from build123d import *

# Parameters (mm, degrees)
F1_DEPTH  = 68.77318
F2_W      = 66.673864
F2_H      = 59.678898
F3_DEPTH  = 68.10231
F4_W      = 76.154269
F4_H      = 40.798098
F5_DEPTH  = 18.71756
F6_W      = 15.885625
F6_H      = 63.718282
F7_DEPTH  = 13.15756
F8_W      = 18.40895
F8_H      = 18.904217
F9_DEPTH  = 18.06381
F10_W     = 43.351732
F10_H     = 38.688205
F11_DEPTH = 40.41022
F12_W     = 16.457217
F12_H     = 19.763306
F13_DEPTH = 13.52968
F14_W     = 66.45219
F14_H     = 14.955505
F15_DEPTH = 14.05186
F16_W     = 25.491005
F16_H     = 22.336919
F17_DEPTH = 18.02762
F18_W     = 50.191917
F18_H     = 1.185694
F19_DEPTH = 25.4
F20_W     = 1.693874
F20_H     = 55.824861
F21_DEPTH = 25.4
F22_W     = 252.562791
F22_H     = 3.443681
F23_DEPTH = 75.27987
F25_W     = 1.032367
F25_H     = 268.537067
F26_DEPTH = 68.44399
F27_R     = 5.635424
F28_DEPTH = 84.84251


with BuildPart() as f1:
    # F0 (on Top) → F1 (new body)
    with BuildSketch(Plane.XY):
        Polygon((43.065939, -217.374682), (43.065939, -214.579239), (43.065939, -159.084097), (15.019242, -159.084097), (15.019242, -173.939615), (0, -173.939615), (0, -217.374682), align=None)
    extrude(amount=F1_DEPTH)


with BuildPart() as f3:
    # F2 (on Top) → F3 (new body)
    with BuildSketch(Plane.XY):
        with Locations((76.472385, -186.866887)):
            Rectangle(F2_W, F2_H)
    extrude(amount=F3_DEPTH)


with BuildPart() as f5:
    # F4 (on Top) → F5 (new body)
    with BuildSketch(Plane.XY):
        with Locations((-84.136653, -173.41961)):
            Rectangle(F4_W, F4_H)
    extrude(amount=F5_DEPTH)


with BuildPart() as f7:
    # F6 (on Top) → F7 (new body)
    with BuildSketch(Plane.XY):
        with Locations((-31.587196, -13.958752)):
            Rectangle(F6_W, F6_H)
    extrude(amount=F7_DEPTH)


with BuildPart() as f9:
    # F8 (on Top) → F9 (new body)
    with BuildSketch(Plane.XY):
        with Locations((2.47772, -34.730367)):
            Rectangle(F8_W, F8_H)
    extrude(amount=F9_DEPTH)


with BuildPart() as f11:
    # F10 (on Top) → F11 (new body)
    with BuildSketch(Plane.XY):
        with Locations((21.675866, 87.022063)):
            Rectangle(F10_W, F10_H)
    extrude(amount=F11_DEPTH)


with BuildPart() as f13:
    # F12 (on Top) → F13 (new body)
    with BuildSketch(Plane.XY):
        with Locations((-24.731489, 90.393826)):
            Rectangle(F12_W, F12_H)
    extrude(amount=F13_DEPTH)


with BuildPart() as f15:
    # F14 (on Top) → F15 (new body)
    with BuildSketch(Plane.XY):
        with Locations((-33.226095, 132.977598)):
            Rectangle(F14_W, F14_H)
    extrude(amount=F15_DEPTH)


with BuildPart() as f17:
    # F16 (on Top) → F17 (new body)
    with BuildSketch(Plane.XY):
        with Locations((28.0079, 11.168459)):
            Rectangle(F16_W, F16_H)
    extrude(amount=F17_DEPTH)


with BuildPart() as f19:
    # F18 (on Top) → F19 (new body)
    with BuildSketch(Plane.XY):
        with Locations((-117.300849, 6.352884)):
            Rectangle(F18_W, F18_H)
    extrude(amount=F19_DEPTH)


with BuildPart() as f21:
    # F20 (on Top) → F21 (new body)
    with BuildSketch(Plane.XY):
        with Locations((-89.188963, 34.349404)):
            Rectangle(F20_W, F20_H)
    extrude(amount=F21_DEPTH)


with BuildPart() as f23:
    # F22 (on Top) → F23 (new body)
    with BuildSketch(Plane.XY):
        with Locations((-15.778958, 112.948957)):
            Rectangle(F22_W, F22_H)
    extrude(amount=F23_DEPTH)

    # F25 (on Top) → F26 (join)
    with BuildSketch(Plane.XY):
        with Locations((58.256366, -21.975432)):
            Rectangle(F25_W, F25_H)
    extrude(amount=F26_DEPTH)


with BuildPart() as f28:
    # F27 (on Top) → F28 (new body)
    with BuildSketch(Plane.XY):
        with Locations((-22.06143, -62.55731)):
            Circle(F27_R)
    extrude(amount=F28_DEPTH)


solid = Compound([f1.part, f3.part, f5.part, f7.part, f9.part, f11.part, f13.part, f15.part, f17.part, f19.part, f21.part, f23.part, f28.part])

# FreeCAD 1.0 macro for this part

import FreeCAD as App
import Part
import Sketcher

V = App.Vector


def add_polygon(sketch, points):
    """Adds a closed chain of lines whose ends are joined by coincident constraints."""
    first, n = sketch.GeometryCount, len(points)
    for a, b in zip(points, points[1:] + points[:1]):
        sketch.addGeometry(Part.LineSegment(App.Vector(*a, 0), App.Vector(*b, 0)), False)
    for i in range(n):
        sketch.addConstraint(Sketcher.Constraint("Coincident", first + i, 2, first + (i + 1) % n, 1))

doc = App.newDocument("Part")
params = doc.addObject("Spreadsheet::Sheet", "Params")
for row, (alias, value) in enumerate([
    ("pad1_length", "68.77318 mm"),
    ("pad2_length", "68.10231 mm"),
    ("pad3_length", "18.71756 mm"),
    ("pad4_length", "13.15756 mm"),
    ("pad5_length", "18.06381 mm"),
    ("pad6_length", "40.41022 mm"),
    ("pad7_length", "13.52968 mm"),
    ("pad8_length", "14.05186 mm"),
    ("pad9_length", "18.02762 mm"),
    ("pad10_length", "1 in"),
    ("pad11_length", "1 in"),
    ("pad12_length", "75.27987 mm"),
    ("pad13_length", "68.44399 mm"),
    ("pad14_length", "84.84251 mm"),
], start=1):
    params.set(f"A{row}", alias)
    params.set(f"B{row}", "=" + value)
    params.setAlias(f"B{row}", alias)

body = doc.addObject("PartDesign::Body", "Body")

# Sketch on XY plane
sketch1 = body.newObject("Sketcher::SketchObject", "Sketch")
sketch1.AttachmentSupport = (doc.getObject("XY_Plane"), [""])
sketch1.MapMode = "FlatFace"
add_polygon(sketch1, [(43, -217), (43, -159), (15, -159), (15, -174), (0, -174), (0, -217)])  # lines 0-5
sketch1.addConstraint([
    Sketcher.Constraint("Vertical", 0),
    Sketcher.Constraint("Horizontal", 1),
    Sketcher.Constraint("Vertical", 2),
    Sketcher.Constraint("Horizontal", 3),
    Sketcher.Constraint("Vertical", 4),
    Sketcher.Constraint("Horizontal", 5),
    Sketcher.Constraint("PointOnObject", 3, 2, -2),
    Sketcher.Constraint("DistanceX", 5, 1, 5, 2, 43.065939),
    Sketcher.Constraint("DistanceX", 1, 2, 1, 1, 28.046697),
    Sketcher.Constraint("DistanceY", 0, 1, 0, 2, 58.290585),
    Sketcher.Constraint("DistanceY", 2, 2, 2, 1, 14.855518),
    Sketcher.Constraint("DistanceY", 4, 2, -1, 1, 217.374682),
])
pad1 = body.newObject("PartDesign::Pad", "Pad")
pad1.Profile = sketch1
pad1.setExpression("Length", "Params.pad1_length")
body2 = doc.addObject("PartDesign::Body", "Body001")

# Sketch on XY plane
sketch2 = body2.newObject("Sketcher::SketchObject", "Sketch001")
sketch2.AttachmentSupport = (doc.getObject("XY_Plane001"), [""])
sketch2.MapMode = "FlatFace"
add_polygon(sketch2, [(43, -157), (43, -217), (110, -217), (110, -157)])  # lines 0-3
sketch2.addConstraint([
    Sketcher.Constraint("Vertical", 0),
    Sketcher.Constraint("Horizontal", 1),
    Sketcher.Constraint("Vertical", 2),
    Sketcher.Constraint("Horizontal", 3),
    Sketcher.Constraint("DistanceY", 0, 2, 0, 1, 59.678898),
    Sketcher.Constraint("DistanceX", 1, 1, 1, 2, 66.673864),
    Sketcher.Constraint("DistanceX", -1, 1, 0, 2, 43.135453),
    Sketcher.Constraint("DistanceY", 0, 2, -1, 1, 216.706336),
])
pad2 = body2.newObject("PartDesign::Pad", "Pad001")
pad2.Profile = sketch2
pad2.setExpression("Length", "Params.pad2_length")
body3 = doc.addObject("PartDesign::Body", "Body002")

# Sketch on XY plane
sketch3 = body3.newObject("Sketcher::SketchObject", "Sketch002")
sketch3.AttachmentSupport = (doc.getObject("XY_Plane002"), [""])
sketch3.MapMode = "FlatFace"
add_polygon(sketch3, [(-122, -153), (-122, -194), (-46, -194), (-46, -153)])  # lines 0-3
sketch3.addConstraint([
    Sketcher.Constraint("Vertical", 0),
    Sketcher.Constraint("Horizontal", 1),
    Sketcher.Constraint("Vertical", 2),
    Sketcher.Constraint("Horizontal", 3),
    Sketcher.Constraint("DistanceY", 0, 2, 0, 1, 40.798098),
    Sketcher.Constraint("DistanceX", 1, 1, 1, 2, 76.154269),
    Sketcher.Constraint("DistanceY", 0, 2, -1, 1, 193.818659),
    Sketcher.Constraint("DistanceX", 1, 2, -1, 1, 46.059519),
])
pad3 = body3.newObject("PartDesign::Pad", "Pad002")
pad3.Profile = sketch3
pad3.setExpression("Length", "Params.pad3_length")
body4 = doc.addObject("PartDesign::Body", "Body003")

# Sketch on XY plane
sketch4 = body4.newObject("Sketcher::SketchObject", "Sketch003")
sketch4.AttachmentSupport = (doc.getObject("XY_Plane003"), [""])
sketch4.MapMode = "FlatFace"
add_polygon(sketch4, [(-40, 18), (-40, -46), (-24, -46), (-24, 18)])  # lines 0-3
sketch4.addConstraint([
    Sketcher.Constraint("Vertical", 0),
    Sketcher.Constraint("Horizontal", 1),
    Sketcher.Constraint("Vertical", 2),
    Sketcher.Constraint("Horizontal", 3),
    Sketcher.Constraint("DistanceX", 1, 1, 1, 2, 15.885625),
    Sketcher.Constraint("DistanceY", 0, 2, 0, 1, 63.718282),
    Sketcher.Constraint("DistanceX", 0, 2, -1, 1, 39.530009),
    Sketcher.Constraint("DistanceY", -1, 1, 2, 2, 17.900389),
])
pad4 = body4.newObject("PartDesign::Pad", "Pad003")
pad4.Profile = sketch4
pad4.setExpression("Length", "Params.pad4_length")
body5 = doc.addObject("PartDesign::Body", "Body004")

# Sketch on XY plane
sketch5 = body5.newObject("Sketcher::SketchObject", "Sketch004")
sketch5.AttachmentSupport = (doc.getObject("XY_Plane004"), [""])
sketch5.MapMode = "FlatFace"
add_polygon(sketch5, [(-7, -25), (-7, -44), (12, -44), (12, -25)])  # lines 0-3
sketch5.addConstraint([
    Sketcher.Constraint("Vertical", 0),
    Sketcher.Constraint("Horizontal", 1),
    Sketcher.Constraint("Vertical", 2),
    Sketcher.Constraint("Horizontal", 3),
    Sketcher.Constraint("DistanceX", 1, 1, 1, 2, 18.40895),
    Sketcher.Constraint("DistanceY", 0, 2, 0, 1, 18.904217),
    Sketcher.Constraint("DistanceY", 2, 2, -1, 1, 25.278258),
    Sketcher.Constraint("DistanceX", 0, 2, -1, 1, 6.726755),
])
pad5 = body5.newObject("PartDesign::Pad", "Pad004")
pad5.Profile = sketch5
pad5.setExpression("Length", "Params.pad5_length")
body6 = doc.addObject("PartDesign::Body", "Body005")

# Sketch on XY plane
sketch6 = body6.newObject("Sketcher::SketchObject", "Sketch005")
sketch6.AttachmentSupport = (doc.getObject("XY_Plane005"), [""])
sketch6.MapMode = "FlatFace"
add_polygon(sketch6, [(0, 106), (0, 68), (43, 68), (43, 106)])  # lines 0-3
sketch6.addConstraint([
    Sketcher.Constraint("Vertical", 0),
    Sketcher.Constraint("Horizontal", 1),
    Sketcher.Constraint("Vertical", 2),
    Sketcher.Constraint("Horizontal", 3),
    Sketcher.Constraint("PointOnObject", 0, 2, -2),
    Sketcher.Constraint("DistanceX", 1, 1, 1, 2, 43.351732),
    Sketcher.Constraint("DistanceY", 0, 2, 0, 1, 38.688205),
    Sketcher.Constraint("DistanceY", -1, 1, 0, 2, 67.67796),
])
pad6 = body6.newObject("PartDesign::Pad", "Pad005")
pad6.Profile = sketch6
pad6.setExpression("Length", "Params.pad6_length")
body7 = doc.addObject("PartDesign::Body", "Body006")

# Sketch on XY plane
sketch7 = body7.newObject("Sketcher::SketchObject", "Sketch006")
sketch7.AttachmentSupport = (doc.getObject("XY_Plane006"), [""])
sketch7.MapMode = "FlatFace"
add_polygon(sketch7, [(-33, 100), (-33, 81), (-17, 81), (-17, 100)])  # lines 0-3
sketch7.addConstraint([
    Sketcher.Constraint("Vertical", 0),
    Sketcher.Constraint("Horizontal", 1),
    Sketcher.Constraint("Vertical", 2),
    Sketcher.Constraint("Horizontal", 3),
    Sketcher.Constraint("DistanceX", 1, 1, 1, 2, 16.457217),
    Sketcher.Constraint("DistanceY", 0, 2, 0, 1, 19.763306),
    Sketcher.Constraint("DistanceX", 1, 2, -1, 1, 16.50288),
    Sketcher.Constraint("DistanceY", -1, 1, 2, 2, 100.275479),
])
pad7 = body7.newObject("PartDesign::Pad", "Pad006")
pad7.Profile = sketch7
pad7.setExpression("Length", "Params.pad7_length")
body8 = doc.addObject("PartDesign::Body", "Body007")

# Sketch on XY plane
sketch8 = body8.newObject("Sketcher::SketchObject", "Sketch007")
sketch8.AttachmentSupport = (doc.getObject("XY_Plane007"), [""])
sketch8.MapMode = "FlatFace"
add_polygon(sketch8, [(-66, 140), (-66, 125), (0, 125), (0, 140)])  # lines 0-3
sketch8.addConstraint([
    Sketcher.Constraint("Vertical", 0),
    Sketcher.Constraint("Horizontal", 1),
    Sketcher.Constraint("Vertical", 2),
    Sketcher.Constraint("Horizontal", 3),
    Sketcher.Constraint("PointOnObject", 1, 2, -2),
    Sketcher.Constraint("DistanceX", 1, 1, 1, 2, 66.45219),
    Sketcher.Constraint("DistanceY", 0, 2, 0, 1, 14.955505),
    Sketcher.Constraint("DistanceY", -1, 1, 2, 2, 140.455351),
])
pad8 = body8.newObject("PartDesign::Pad", "Pad007")
pad8.Profile = sketch8
pad8.setExpression("Length", "Params.pad8_length")
body9 = doc.addObject("PartDesign::Body", "Body008")

# Sketch on XY plane
sketch9 = body9.newObject("Sketcher::SketchObject", "Sketch008")
sketch9.AttachmentSupport = (doc.getObject("XY_Plane008"), [""])
sketch9.MapMode = "FlatFace"
add_polygon(sketch9, [(15, 22), (15, 0), (41, 0), (41, 22)])  # lines 0-3
sketch9.addConstraint([
    Sketcher.Constraint("Vertical", 0),
    Sketcher.Constraint("Horizontal", 1),
    Sketcher.Constraint("Vertical", 2),
    Sketcher.Constraint("Horizontal", 3),
    Sketcher.Constraint("PointOnObject", 0, 2, -1),
    Sketcher.Constraint("DistanceY", 0, 2, 0, 1, 22.336919),
    Sketcher.Constraint("DistanceX", 1, 1, 1, 2, 25.491005),
    Sketcher.Constraint("DistanceX", -1, 1, 0, 2, 15.262398),
])
pad9 = body9.newObject("PartDesign::Pad", "Pad008")
pad9.Profile = sketch9
pad9.setExpression("Length", "Params.pad9_length")
body10 = doc.addObject("PartDesign::Body", "Body009")

# Sketch on XY plane
sketch10 = body10.newObject("Sketcher::SketchObject", "Sketch009")
sketch10.AttachmentSupport = (doc.getObject("XY_Plane009"), [""])
sketch10.MapMode = "FlatFace"
add_polygon(sketch10, [(-142.4, 6.9), (-142.4, 5.8), (-92.2, 5.8), (-92.2, 6.9)])  # lines 0-3
sketch10.addConstraint([
    Sketcher.Constraint("Vertical", 0),
    Sketcher.Constraint("Horizontal", 1),
    Sketcher.Constraint("Vertical", 2),
    Sketcher.Constraint("Horizontal", 3),
    Sketcher.Constraint("DistanceX", 1, 1, 1, 2, 50.191917),
    Sketcher.Constraint("DistanceY", 0, 2, 0, 1, 1.185694),
    Sketcher.Constraint("DistanceX", 1, 2, -1, 1, 92.204891),
    Sketcher.Constraint("DistanceY", -1, 1, 2, 2, 6.945731),
])
pad10 = body10.newObject("PartDesign::Pad", "Pad009")
pad10.Profile = sketch10
pad10.setExpression("Length", "Params.pad10_length")
body11 = doc.addObject("PartDesign::Body", "Body010")

# Sketch on XY plane
sketch11 = body11.newObject("Sketcher::SketchObject", "Sketch010")
sketch11.AttachmentSupport = (doc.getObject("XY_Plane010"), [""])
sketch11.MapMode = "FlatFace"
add_polygon(sketch11, [(-90, 62.3), (-90, 6.4), (-88.3, 6.4), (-88.3, 62.3)])  # lines 0-3
sketch11.addConstraint([
    Sketcher.Constraint("Vertical", 0),
    Sketcher.Constraint("Horizontal", 1),
    Sketcher.Constraint("Vertical", 2),
    Sketcher.Constraint("Horizontal", 3),
    Sketcher.Constraint("DistanceY", 0, 2, 0, 1, 55.824861),
    Sketcher.Constraint("DistanceX", 0, 2, -1, 1, 90.0359),
    Sketcher.Constraint("DistanceX", 1, 1, 1, 2, 1.693874),
    Sketcher.Constraint("DistanceY", -1, 1, 0, 2, 6.436973),
])
pad11 = body11.newObject("PartDesign::Pad", "Pad010")
pad11.Profile = sketch11
pad11.setExpression("Length", "Params.pad11_length")
body12 = doc.addObject("PartDesign::Body", "Body011")

# Sketch on XY plane
sketch12 = body12.newObject("Sketcher::SketchObject", "Sketch011")
sketch12.AttachmentSupport = (doc.getObject("XY_Plane011"), [""])
sketch12.MapMode = "FlatFace"
add_polygon(sketch12, [(-142.1, 114.7), (-142.1, 111.2), (110.5, 111.2), (110.5, 114.7)])  # lines 0-3
sketch12.addConstraint([
    Sketcher.Constraint("Vertical", 0),
    Sketcher.Constraint("Horizontal", 1),
    Sketcher.Constraint("Vertical", 2),
    Sketcher.Constraint("Horizontal", 3),
    Sketcher.Constraint("DistanceX", 1, 1, 1, 2, 252.562791),
    Sketcher.Constraint("DistanceY", 0, 2, 0, 1, 3.443681),
    Sketcher.Constraint("DistanceX", 0, 2, -1, 1, 142.060353),
    Sketcher.Constraint("DistanceY", -1, 1, 0, 2, 111.227116),
])
pad12 = body12.newObject("PartDesign::Pad", "Pad011")
pad12.Profile = sketch12
pad12.setExpression("Length", "Params.pad12_length")

# Sketch on XY plane
sketch13 = body12.newObject("Sketcher::SketchObject", "Sketch012")
sketch13.AttachmentSupport = (doc.getObject("XY_Plane011"), [""])
sketch13.MapMode = "FlatFace"
add_polygon(sketch13, [(57.7, 112.3), (57.7, -156.2), (58.8, -156.2), (58.8, 112.3)])  # lines 0-3
sketch13.addConstraint([
    Sketcher.Constraint("Vertical", 0),
    Sketcher.Constraint("Horizontal", 1),
    Sketcher.Constraint("Vertical", 2),
    Sketcher.Constraint("Horizontal", 3),
    Sketcher.Constraint("DistanceY", -1, 1, 2, 2, 112.293102),
    Sketcher.Constraint("DistanceX", 1, 1, 1, 2, 1.032367),
    Sketcher.Constraint("DistanceY", 0, 2, 0, 1, 268.537067),
    Sketcher.Constraint("DistanceX", -1, 1, 1, 2, 58.772549),
])
pad13 = body12.newObject("PartDesign::Pad", "Pad012")
pad13.Profile = sketch13
pad13.setExpression("Length", "Params.pad13_length")
body13 = doc.addObject("PartDesign::Body", "Body012")

# Sketch on XY plane
sketch14 = body13.newObject("Sketcher::SketchObject", "Sketch013")
sketch14.AttachmentSupport = (doc.getObject("XY_Plane012"), [""])
sketch14.MapMode = "FlatFace"
sketch14.addGeometry(Part.Circle(V(-22, -63, 0), V(0, 0, 1), 6), False)
sketch14.addConstraint([
    Sketcher.Constraint("Diameter", 0, 11.270848),
    Sketcher.Constraint("DistanceX", 0, 3, -1, 1, 22.06143),
    Sketcher.Constraint("DistanceY", 0, 3, -1, 1, 62.55731),
])
pad14 = body13.newObject("PartDesign::Pad", "Pad013")
pad14.Profile = sketch14
pad14.setExpression("Length", "Params.pad14_length")

doc.recompute()
